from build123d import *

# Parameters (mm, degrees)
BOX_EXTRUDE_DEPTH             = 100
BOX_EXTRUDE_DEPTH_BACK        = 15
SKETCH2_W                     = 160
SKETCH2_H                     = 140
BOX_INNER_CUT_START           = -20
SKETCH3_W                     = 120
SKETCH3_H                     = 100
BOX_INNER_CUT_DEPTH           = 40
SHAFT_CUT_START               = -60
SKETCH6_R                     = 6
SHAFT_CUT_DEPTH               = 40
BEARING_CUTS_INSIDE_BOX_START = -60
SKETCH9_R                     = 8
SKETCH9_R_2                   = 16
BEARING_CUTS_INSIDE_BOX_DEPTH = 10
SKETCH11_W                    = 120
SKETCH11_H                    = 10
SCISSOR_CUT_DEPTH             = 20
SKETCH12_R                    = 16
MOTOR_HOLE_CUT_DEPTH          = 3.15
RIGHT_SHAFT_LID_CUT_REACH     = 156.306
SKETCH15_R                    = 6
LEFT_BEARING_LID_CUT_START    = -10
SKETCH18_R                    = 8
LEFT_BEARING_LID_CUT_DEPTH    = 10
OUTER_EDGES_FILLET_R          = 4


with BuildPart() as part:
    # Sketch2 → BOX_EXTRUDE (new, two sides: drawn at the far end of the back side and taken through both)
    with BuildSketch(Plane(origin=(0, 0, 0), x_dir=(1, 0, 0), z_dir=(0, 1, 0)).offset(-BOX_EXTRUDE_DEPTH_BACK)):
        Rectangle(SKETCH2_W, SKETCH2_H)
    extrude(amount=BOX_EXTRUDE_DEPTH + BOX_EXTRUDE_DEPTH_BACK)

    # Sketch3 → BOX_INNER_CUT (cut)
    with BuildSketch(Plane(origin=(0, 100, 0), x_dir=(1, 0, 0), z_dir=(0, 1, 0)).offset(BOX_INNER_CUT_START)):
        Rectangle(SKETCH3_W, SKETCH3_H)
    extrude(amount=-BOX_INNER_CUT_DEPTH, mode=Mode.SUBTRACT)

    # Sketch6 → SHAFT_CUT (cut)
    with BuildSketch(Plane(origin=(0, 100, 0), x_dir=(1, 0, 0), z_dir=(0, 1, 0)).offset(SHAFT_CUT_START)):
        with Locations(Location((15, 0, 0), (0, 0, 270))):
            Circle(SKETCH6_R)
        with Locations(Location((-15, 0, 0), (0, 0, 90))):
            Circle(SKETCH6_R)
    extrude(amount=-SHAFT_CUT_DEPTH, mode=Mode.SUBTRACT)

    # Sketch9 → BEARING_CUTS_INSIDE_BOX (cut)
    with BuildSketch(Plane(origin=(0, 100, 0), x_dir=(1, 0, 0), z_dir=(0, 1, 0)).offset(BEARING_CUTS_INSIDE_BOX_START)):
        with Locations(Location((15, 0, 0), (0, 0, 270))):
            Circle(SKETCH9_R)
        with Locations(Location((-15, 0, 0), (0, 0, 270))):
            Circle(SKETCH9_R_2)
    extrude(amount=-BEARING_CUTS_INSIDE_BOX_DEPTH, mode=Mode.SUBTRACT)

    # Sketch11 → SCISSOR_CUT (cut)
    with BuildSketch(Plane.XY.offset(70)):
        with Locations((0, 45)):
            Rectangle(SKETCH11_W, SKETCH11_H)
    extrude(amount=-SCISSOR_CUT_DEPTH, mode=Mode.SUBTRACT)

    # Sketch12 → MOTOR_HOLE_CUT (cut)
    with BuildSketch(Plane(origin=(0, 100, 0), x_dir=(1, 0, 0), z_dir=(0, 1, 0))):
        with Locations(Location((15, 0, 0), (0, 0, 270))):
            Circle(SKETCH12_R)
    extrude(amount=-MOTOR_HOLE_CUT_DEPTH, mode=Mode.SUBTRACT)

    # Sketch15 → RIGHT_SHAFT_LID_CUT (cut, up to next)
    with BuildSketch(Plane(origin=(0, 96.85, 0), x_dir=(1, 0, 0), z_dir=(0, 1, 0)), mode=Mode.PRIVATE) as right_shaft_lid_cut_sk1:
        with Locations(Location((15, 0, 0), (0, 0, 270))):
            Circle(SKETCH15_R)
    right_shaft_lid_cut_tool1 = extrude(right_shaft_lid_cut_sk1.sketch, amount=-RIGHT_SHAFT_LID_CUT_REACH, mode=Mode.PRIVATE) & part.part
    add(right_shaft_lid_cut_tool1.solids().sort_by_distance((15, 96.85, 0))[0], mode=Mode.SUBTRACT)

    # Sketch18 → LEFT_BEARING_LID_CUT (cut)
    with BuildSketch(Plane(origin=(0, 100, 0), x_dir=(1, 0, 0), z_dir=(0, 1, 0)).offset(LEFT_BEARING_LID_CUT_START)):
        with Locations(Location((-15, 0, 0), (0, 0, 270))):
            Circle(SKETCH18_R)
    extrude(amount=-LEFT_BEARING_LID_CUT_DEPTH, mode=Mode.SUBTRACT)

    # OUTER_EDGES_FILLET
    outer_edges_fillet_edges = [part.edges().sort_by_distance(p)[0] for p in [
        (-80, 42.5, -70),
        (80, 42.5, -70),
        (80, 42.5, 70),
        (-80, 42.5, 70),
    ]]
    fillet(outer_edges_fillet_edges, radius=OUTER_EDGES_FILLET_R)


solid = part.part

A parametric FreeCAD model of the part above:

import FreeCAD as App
import Part
import Sketcher
from FreeCAD import Vector


def edges_at(feature, points):
    """Names of the edges that pass closest to the given points."""
    edges = feature.Shape.Edges
    near = lambda p: min(range(len(edges)), key=lambda i: edges[i].distToShape(Part.Vertex(*p))[0])
    return sorted({f"Edge{near(p) + 1}" for p in points})


def add_polygon(sketch, points):
    """Adds a closed chain of lines whose ends are joined by coincident constraints."""
    first, n = sketch.GeometryCount, len(points)
    for a, b in zip(points, points[1:] + points[:1]):
        sketch.addGeometry(Part.LineSegment(App.Vector(*a, 0), App.Vector(*b, 0)), False)
    for i in range(n):
        sketch.addConstraint(Sketcher.Constraint("Coincident", first + i, 2, first + (i + 1) % n, 1))

doc = App.newDocument("Part")
params = doc.addObject("Spreadsheet::Sheet", "Params")
for row, (alias, value) in enumerate([
    ("sketch1_width", "160 mm"),
    ("sketch1_height", "140 mm"),
    ("pad1_length", "100 mm"),
    ("pad1_length2", "15 mm"),
    ("sketch2_width", "120 mm"),
    ("sketch2_height", "100 mm"),
    ("pocket1_length", "40 mm"),
    ("sketch3_diameter", "12 mm"),
    ("pocket2_length", "40 mm"),
    ("sketch4_diameter", "16 mm"),
    ("sketch4_diameter2", "32 mm"),
    ("pocket3_length", "10 mm"),
    ("sketch5_width", "120 mm"),
    ("sketch5_height", "10 mm"),
    ("pocket4_length", "20 mm"),
    ("sketch6_diameter", "32 mm"),
    ("pocket5_length", "3.15 mm"),
    ("sketch7_diameter", "12 mm"),
    ("sketch8_diameter", "16 mm"),
    ("pocket7_length", "10 mm"),
    ("fillet_radius", "4 mm"),
], start=1):
    params.set(f"A{row}", alias)
    params.set(f"B{row}", "=" + value)
    params.setAlias(f"B{row}", alias)

body = doc.addObject("PartDesign::Body", "Body")

sketch1 = body.newObject("Sketcher::SketchObject", "Sketch")
sketch1.AttachmentSupport = (doc.getObject("XZ_Plane"), [""])
sketch1.MapMode = "FlatFace"
add_polygon(sketch1, [(-80, -70), (-80, 70), (80, 70), (80, -70)])
sketch1.addConstraint([
    Sketcher.Constraint("Vertical", 0),
    Sketcher.Constraint("Horizontal", 1),
    Sketcher.Constraint("Vertical", 2),
    Sketcher.Constraint("Horizontal", 3),
    Sketcher.Constraint("Symmetric", 0, 2, 2, 2, -1, 1),
    Sketcher.Constraint("DistanceX", 1, 1, 1, 2, 160.0),
    Sketcher.Constraint("DistanceY", 0, 1, 0, 2, 140.0),
])
sketch1.setExpression("Constraints[9]", "Params.sketch1_width")
sketch1.setExpression("Constraints[10]", "Params.sketch1_height")
pad1 = body.newObject("PartDesign::Pad", "Pad")
pad1.Profile = sketch1
pad1.Type = "TwoLengths"
pad1.setExpression("Length", "Params.pad1_length")
pad1.setExpression("Length2", "Params.pad1_length2")
pad1.Reversed = True

sketch2 = body.newObject("Sketcher::SketchObject", "Sketch001")
sketch2.AttachmentSupport = (doc.getObject("XZ_Plane"), [""])
sketch2.MapMode = "FlatFace"
sketch2.AttachmentOffset = App.Placement(Vector(0, 0, -80), App.Rotation())
add_polygon(sketch2, [(-60, -50), (-60, 50), (60, 50), (60, -50)])
sketch2.addConstraint([
    Sketcher.Constraint("Vertical", 0),
    Sketcher.Constraint("Horizontal", 1),
    Sketcher.Constraint("Vertical", 2),
    Sketcher.Constraint("Horizontal", 3),
    Sketcher.Constraint("Symmetric", 0, 2, 2, 2, -1, 1),
    Sketcher.Constraint("DistanceX", 1, 1, 1, 2, 120.0),
    Sketcher.Constraint("DistanceY", 0, 1, 0, 2, 100.0),
])
sketch2.setExpression("Constraints[9]", "Params.sketch2_width")
sketch2.setExpression("Constraints[10]", "Params.sketch2_height")
pocket1 = body.newObject("PartDesign::Pocket", "Pocket")
pocket1.Profile = sketch2
pocket1.setExpression("Length", "Params.pocket1_length")
pocket1.Reversed = True

sketch3 = body.newObject("Sketcher::SketchObject", "Sketch002")
sketch3.AttachmentSupport = (doc.getObject("XZ_Plane"), [""])
sketch3.MapMode = "FlatFace"
sketch3.AttachmentOffset = App.Placement(Vector(0, 0, -40), App.Rotation())
sketch3.addGeometry([
    Part.Circle(Vector(15, 0, 0), Vector(0, 0, 1), 6),
    Part.Circle(Vector(-15, 0, 0), Vector(0, 0, 1), 6),
], False)
sketch3.addConstraint([
    Sketcher.Constraint("Equal", 0, 1),
    Sketcher.Constraint("Symmetric", 0, 3, 1, 3, -1, 1),
    Sketcher.Constraint("PointOnObject", 0, 3, -1),
    Sketcher.Constraint("Diameter", 0, 12.0),
    Sketcher.Constraint("DistanceX", -1, 1, 0, 3, 15.0),
])
sketch3.setExpression("Constraints[3]", "Params.sketch3_diameter")
pocket2 = body.newObject("PartDesign::Pocket", "Pocket001")
pocket2.Profile = sketch3
pocket2.setExpression("Length", "Params.pocket2_length")
pocket2.Reversed = True

sketch4 = body.newObject("Sketcher::SketchObject", "Sketch003")
sketch4.AttachmentSupport = (doc.getObject("XZ_Plane"), [""])
sketch4.MapMode = "FlatFace"
sketch4.AttachmentOffset = App.Placement(Vector(0, 0, -40), App.Rotation())
sketch4.addGeometry([
    Part.Circle(Vector(15, 0, 0), Vector(0, 0, 1), 8),
    Part.Circle(Vector(-15, 0, 0), Vector(0, 0, 1), 16),
], False)
sketch4.addConstraint([
    Sketcher.Constraint("Symmetric", 0, 3, 1, 3, -1, 1),
    Sketcher.Constraint("PointOnObject", 0, 3, -1),
    Sketcher.Constraint("Diameter", 0, 16.0),
    Sketcher.Constraint("Diameter", 1, 32.0),
    Sketcher.Constraint("DistanceX", -1, 1, 0, 3, 15.0),
])
sketch4.setExpression("Constraints[2]", "Params.sketch4_diameter")
sketch4.setExpression("Constraints[3]", "Params.sketch4_diameter2")
pocket3 = body.newObject("PartDesign::Pocket", "Pocket002")
pocket3.Profile = sketch4
pocket3.setExpression("Length", "Params.pocket3_length")
pocket3.Reversed = True

sketch5 = body.newObject("Sketcher::SketchObject", "Sketch004")
sketch5.AttachmentSupport = (doc.getObject("XY_Plane"), [""])
sketch5.MapMode = "FlatFace"
sketch5.AttachmentOffset = App.Placement(Vector(0, 0, 70), App.Rotation())
add_polygon(sketch5, [(-60, 50), (-60, 40), (60, 40), (60, 50)])
sketch5.addConstraint([
    Sketcher.Constraint("Vertical", 0),
    Sketcher.Constraint("Horizontal", 1),
    Sketcher.Constraint("Vertical", 2),
    Sketcher.Constraint("Horizontal", 3),
    Sketcher.Constraint("DistanceX", 1, 1, 1, 2, 120.0),
    Sketcher.Constraint("DistanceY", 0, 2, 0, 1, 10.0),
    Sketcher.Constraint("DistanceX", 0, 2, -1, 1, 60.0),
    Sketcher.Constraint("DistanceY", -1, 1, 0, 2, 40.0),
])
sketch5.setExpression("Constraints[8]", "Params.sketch5_width")
sketch5.setExpression("Constraints[9]", "Params.sketch5_height")
pocket4 = body.newObject("PartDesign::Pocket", "Pocket003")
pocket4.Profile = sketch5
pocket4.setExpression("Length", "Params.pocket4_length")

sketch6 = body.newObject("Sketcher::SketchObject", "Sketch005")
sketch6.AttachmentSupport = (doc.getObject("XZ_Plane"), [""])
sketch6.MapMode = "FlatFace"
sketch6.AttachmentOffset = App.Placement(Vector(0, 0, -100), App.Rotation())
sketch6.addGeometry(Part.Circle(Vector(15, 0, 0), Vector(0, 0, 1), 16), False)
sketch6.addConstraint([
    Sketcher.Constraint("PointOnObject", 0, 3, -1),
    Sketcher.Constraint("Diameter", 0, 32.0),
    Sketcher.Constraint("DistanceX", -1, 1, 0, 3, 15.0),
])
sketch6.setExpression("Constraints[1]", "Params.sketch6_diameter")
pocket5 = body.newObject("PartDesign::Pocket", "Pocket004")
pocket5.Profile = sketch6
pocket5.setExpression("Length", "Params.pocket5_length")
pocket5.Reversed = True

sketch7 = body.newObject("Sketcher::SketchObject", "Sketch006")
sketch7.AttachmentSupport = (doc.getObject("XZ_Plane"), [""])
sketch7.MapMode = "FlatFace"
sketch7.AttachmentOffset = App.Placement(Vector(0, 0, -96.85), App.Rotation())
sketch7.addGeometry(Part.Circle(Vector(15, 0, 0), Vector(0, 0, 1), 6), False)
sketch7.addConstraint([
    Sketcher.Constraint("PointOnObject", 0, 3, -1),
    Sketcher.Constraint("Diameter", 0, 12.0),
    Sketcher.Constraint("DistanceX", -1, 1, 0, 3, 15.0),
])
sketch7.setExpression("Constraints[1]", "Params.sketch7_diameter")
pocket6 = body.newObject("PartDesign::Pocket", "Pocket005")
pocket6.Profile = sketch7
pocket6.Type = "UpToFirst"
pocket6.Reversed = True

sketch8 = body.newObject("Sketcher::SketchObject", "Sketch007")
sketch8.AttachmentSupport = (doc.getObject("XZ_Plane"), [""])
sketch8.MapMode = "FlatFace"
sketch8.AttachmentOffset = App.Placement(Vector(0, 0, -90), App.Rotation())
sketch8.addGeometry(Part.Circle(Vector(-15, 0, 0), Vector(0, 0, 1), 8), False)
sketch8.addConstraint([
    Sketcher.Constraint("PointOnObject", 0, 3, -1),
    Sketcher.Constraint("Diameter", 0, 16.0),
    Sketcher.Constraint("DistanceX", 0, 3, -1, 1, 15.0),
])
sketch8.setExpression("Constraints[1]", "Params.sketch8_diameter")
pocket7 = body.newObject("PartDesign::Pocket", "Pocket006")
pocket7.Profile = sketch8
pocket7.setExpression("Length", "Params.pocket7_length")
pocket7.Reversed = True
doc.recompute()

fillet = body.newObject("PartDesign::Fillet", "Fillet")
fillet.Base = (pocket7, edges_at(pocket7, [
    (-80, 42.5, -70),
    (80, 42.5, -70),
    (80, 42.5, 70),
    (-80, 42.5, 70),
]))
fillet.setExpression("Radius", "Params.fillet_radius")

doc.recompute()
